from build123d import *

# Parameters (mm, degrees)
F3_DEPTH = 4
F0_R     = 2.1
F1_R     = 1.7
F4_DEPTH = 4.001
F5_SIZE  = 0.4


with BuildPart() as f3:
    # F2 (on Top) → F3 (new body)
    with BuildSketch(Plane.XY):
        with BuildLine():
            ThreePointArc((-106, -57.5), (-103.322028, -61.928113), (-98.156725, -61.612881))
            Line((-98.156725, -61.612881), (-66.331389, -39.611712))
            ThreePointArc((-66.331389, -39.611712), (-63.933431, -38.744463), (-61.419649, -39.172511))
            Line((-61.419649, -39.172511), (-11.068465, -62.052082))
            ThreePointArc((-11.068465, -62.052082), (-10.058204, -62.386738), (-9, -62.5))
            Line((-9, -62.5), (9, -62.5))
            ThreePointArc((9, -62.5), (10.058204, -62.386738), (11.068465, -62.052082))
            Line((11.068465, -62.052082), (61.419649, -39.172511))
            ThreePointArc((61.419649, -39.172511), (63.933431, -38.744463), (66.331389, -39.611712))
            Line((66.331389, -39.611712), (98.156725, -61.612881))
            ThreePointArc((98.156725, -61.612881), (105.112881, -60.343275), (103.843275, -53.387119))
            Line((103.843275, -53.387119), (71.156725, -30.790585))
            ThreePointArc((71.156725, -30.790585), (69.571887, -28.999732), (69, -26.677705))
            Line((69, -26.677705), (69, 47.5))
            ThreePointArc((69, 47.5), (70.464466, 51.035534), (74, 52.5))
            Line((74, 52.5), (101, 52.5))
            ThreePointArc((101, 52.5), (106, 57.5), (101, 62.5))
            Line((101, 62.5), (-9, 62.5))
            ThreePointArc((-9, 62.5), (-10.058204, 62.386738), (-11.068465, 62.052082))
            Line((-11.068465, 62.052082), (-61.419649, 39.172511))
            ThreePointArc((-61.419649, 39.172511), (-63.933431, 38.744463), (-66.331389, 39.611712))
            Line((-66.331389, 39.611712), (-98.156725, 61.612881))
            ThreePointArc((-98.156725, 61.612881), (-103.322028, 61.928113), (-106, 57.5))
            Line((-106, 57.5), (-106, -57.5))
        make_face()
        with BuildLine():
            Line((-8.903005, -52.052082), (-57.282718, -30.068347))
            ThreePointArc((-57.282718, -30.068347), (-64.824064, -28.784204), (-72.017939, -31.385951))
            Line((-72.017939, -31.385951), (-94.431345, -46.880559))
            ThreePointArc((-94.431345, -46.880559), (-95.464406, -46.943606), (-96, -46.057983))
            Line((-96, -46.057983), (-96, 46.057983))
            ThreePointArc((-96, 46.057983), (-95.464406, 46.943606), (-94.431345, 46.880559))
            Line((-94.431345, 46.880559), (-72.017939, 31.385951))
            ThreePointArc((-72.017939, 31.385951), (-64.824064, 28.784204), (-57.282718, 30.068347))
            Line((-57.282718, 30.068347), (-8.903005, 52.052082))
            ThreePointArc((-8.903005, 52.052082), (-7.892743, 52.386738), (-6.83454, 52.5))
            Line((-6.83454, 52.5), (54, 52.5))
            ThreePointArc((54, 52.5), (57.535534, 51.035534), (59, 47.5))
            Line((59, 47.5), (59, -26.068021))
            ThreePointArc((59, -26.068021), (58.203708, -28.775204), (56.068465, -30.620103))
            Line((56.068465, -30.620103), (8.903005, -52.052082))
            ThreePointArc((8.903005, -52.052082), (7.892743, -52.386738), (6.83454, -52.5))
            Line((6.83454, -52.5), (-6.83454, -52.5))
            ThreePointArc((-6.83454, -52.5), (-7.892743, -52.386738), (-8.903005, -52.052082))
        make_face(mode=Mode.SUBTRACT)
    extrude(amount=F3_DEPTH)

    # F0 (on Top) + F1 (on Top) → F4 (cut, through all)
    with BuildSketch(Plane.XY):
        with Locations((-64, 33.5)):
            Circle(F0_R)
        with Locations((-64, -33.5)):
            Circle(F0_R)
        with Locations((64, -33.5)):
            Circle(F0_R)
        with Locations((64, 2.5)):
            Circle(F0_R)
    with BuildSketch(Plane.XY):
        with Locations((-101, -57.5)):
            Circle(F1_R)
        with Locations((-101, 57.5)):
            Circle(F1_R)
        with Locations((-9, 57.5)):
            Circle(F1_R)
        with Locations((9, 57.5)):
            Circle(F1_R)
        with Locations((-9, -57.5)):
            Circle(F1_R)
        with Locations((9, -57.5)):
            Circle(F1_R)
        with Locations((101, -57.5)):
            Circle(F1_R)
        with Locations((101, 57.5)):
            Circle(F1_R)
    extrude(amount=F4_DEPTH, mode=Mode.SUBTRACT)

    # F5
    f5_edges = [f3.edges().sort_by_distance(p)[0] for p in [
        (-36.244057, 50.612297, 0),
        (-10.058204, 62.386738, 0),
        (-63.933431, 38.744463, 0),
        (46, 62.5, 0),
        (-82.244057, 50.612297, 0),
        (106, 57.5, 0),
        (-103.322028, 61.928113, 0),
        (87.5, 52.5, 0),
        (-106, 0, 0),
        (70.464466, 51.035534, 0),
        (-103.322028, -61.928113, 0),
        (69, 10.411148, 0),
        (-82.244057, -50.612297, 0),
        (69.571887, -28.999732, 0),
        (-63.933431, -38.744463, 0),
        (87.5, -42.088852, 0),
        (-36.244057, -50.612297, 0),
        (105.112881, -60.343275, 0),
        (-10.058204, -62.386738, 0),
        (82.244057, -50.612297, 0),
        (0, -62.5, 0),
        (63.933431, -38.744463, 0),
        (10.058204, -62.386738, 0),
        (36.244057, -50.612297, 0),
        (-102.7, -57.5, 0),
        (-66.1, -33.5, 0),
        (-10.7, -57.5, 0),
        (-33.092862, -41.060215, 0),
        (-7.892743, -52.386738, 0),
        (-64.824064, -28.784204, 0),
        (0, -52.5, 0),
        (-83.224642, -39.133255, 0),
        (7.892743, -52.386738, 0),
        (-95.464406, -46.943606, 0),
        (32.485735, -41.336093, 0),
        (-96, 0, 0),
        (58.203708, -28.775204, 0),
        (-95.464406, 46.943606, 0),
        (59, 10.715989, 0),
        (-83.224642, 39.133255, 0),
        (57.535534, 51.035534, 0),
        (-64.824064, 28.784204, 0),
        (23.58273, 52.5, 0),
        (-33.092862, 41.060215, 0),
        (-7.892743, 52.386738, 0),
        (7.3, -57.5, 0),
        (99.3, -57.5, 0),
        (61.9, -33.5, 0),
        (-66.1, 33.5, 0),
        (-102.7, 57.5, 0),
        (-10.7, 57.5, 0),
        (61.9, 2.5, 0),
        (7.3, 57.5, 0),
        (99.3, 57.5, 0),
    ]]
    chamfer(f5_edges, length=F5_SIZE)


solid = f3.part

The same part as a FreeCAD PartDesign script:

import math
import FreeCAD as App
import Part
import Sketcher

V = App.Vector


def edges_at(feature, points):
    """Names of the edges that pass closest to the given points."""
    edges = feature.Shape.Edges
    near = lambda p: min(range(len(edges)), key=lambda i: edges[i].distToShape(Part.Vertex(*p))[0])
    return sorted({f"Edge{near(p) + 1}" for p in points})

doc = App.newDocument("Part")
body = doc.addObject("PartDesign::Body", "Body")

# Sketch on XY plane
sketch1 = body.newObject("Sketcher::SketchObject", "Sketch")
sketch1.AttachmentSupport = (doc.getObject("XY_Plane"), [""])
sketch1.MapMode = "FlatFace"
sketch1.addGeometry([
    Part.ArcOfCircle(Part.Circle(V(-101, -57.5, 0), V(0, 0, 1), 5), math.radians(-179.999996), math.radians(-55.34352)),  # 0
    Part.LineSegment(V(-98.156725, -61.612881, 0), V(-66.331389, -39.611712, 0)),  # 1
    Part.ArcOfCircle(Part.Circle(V(-63.488115, -43.724592, 0), V(0, 0, 1), 4.999999), math.radians(65.562952), math.radians(124.656488)),  # 2
    Part.LineSegment(V(-61.419649, -39.172511, 0), V(-11.068465, -62.052082, 0)),  # 3
    Part.ArcOfCircle(Part.Circle(V(-9.000004, -57.500022, 0), V(0, 0, 1), 4.999978), math.radians(-114.437095), math.radians(-89.999952)),  # 4
    Part.LineSegment(V(-9, -62.5, 0), V(9, -62.5, 0)),  # 5
    Part.ArcOfCircle(Part.Circle(V(9.000004, -57.500022, 0), V(0, 0, 1), 4.999978), math.radians(-90.000048), math.radians(-65.562905)),  # 6
    Part.LineSegment(V(11.068465, -62.052082, 0), V(61.419649, -39.172511, 0)),  # 7
    Part.ArcOfCircle(Part.Circle(V(63.488115, -43.724592, 0), V(0, 0, 1), 4.999999), math.radians(55.343512), math.radians(114.437048)),  # 8
    Part.LineSegment(V(66.331389, -39.611712, 0), V(98.156725, -61.612881, 0)),  # 9
    Part.ArcOfCircle(Part.Circle(V(101, -57.5, 0), V(0, 0, 1), 5), math.radians(-124.656486), math.radians(55.343514)),  # 10
    Part.LineSegment(V(103.843275, -53.387119, 0), V(71.156725, -30.790585, 0)),  # 11
    Part.ArcOfCircle(Part.Circle(V(74.000002, -26.677703, 0), V(0, 0, 1), 5.000002), math.radians(-179.999979), math.radians(-124.656501)),  # 12
    Part.LineSegment(V(69, -26.677705, 0), V(69, 47.5, 0)),  # 13
    Part.ArcOfCircle(Part.Circle(V(74, 47.5, 0), V(0, 0, 1), 5), math.radians(89.999996), math.radians(180.000004)),  # 14
    Part.LineSegment(V(74, 52.5, 0), V(101, 52.5, 0)),  # 15
    Part.ArcOfCircle(Part.Circle(V(101, 57.5, 0), V(0, 0, 1), 5), math.radians(-90), math.radians(90)),  # 16
    Part.LineSegment(V(101, 62.5, 0), V(-9, 62.5, 0)),  # 17
    Part.ArcOfCircle(Part.Circle(V(-9.000004, 57.500022, 0), V(0, 0, 1), 4.999978), math.radians(89.999952), math.radians(114.437095)),  # 18
    Part.LineSegment(V(-11.068465, 62.052082, 0), V(-61.419649, 39.172511, 0)),  # 19
    Part.ArcOfCircle(Part.Circle(V(-63.488115, 43.724592, 0), V(0, 0, 1), 4.999999), math.radians(-124.656488), math.radians(-65.562952)),  # 20
    Part.LineSegment(V(-66.331389, 39.611712, 0), V(-98.156725, 61.612881, 0)),  # 21
    Part.ArcOfCircle(Part.Circle(V(-101, 57.5, 0), V(0, 0, 1), 5), math.radians(55.34352), math.radians(179.999996)),  # 22
    Part.LineSegment(V(-106, 57.5, 0), V(-106, -57.5, 0)),  # 23
    Part.ArcOfCircle(Part.Circle(V(-6.834542, -47.500013, 0), V(0, 0, 1), 4.999987), math.radians(-114.437073), math.radians(-89.999975)),  # 24
    Part.LineSegment(V(-8.903005, -52.052082, 0), V(-57.282718, -30.068347, 0)),  # 25
    Part.ArcOfCircle(Part.Circle(V(-63.488114, -43.724596, 0), V(0, 0, 1), 15.000003), math.radians(65.562965), math.radians(124.656481)),  # 26
    Part.LineSegment(V(-72.017939, -31.385951, 0), V(-94.431345, -46.880559, 0)),  # 27
    Part.ArcOfCircle(Part.Circle(V(-95.000001, -46.057984, 0), V(0, 0, 1), 0.999999), math.radians(179.999948), math.radians(304.656548)),  # 28
    Part.LineSegment(V(-96, -46.057983, 0), V(-96, 46.057983, 0)),  # 29
    Part.ArcOfCircle(Part.Circle(V(-95.000001, 46.057984, 0), V(0, 0, 1), 0.999999), math.radians(55.343452), math.radians(180.000052)),  # 30
    Part.LineSegment(V(-94.431345, 46.880559, 0), V(-72.017939, 31.385951, 0)),  # 31
    Part.ArcOfCircle(Part.Circle(V(-63.488114, 43.724596, 0), V(0, 0, 1), 15.000003), math.radians(-124.656481), math.radians(-65.562965)),  # 32
    Part.LineSegment(V(-57.282718, 30.068347, 0), V(-8.903005, 52.052082, 0)),  # 33
    Part.ArcOfCircle(Part.Circle(V(-6.834542, 47.500013, 0), V(0, 0, 1), 4.999987), math.radians(89.999975), math.radians(114.437073)),  # 34
    Part.LineSegment(V(-6.83454, 52.5, 0), V(54, 52.5, 0)),  # 35
    Part.ArcOfCircle(Part.Circle(V(54, 47.5, 0), V(0, 0, 1), 5), math.radians(-0.000004), math.radians(90.000004)),  # 36
    Part.LineSegment(V(59, 47.5, 0), V(59, -26.068021, 0)),  # 37
    Part.ArcOfCircle(Part.Circle(V(54.000001, -26.068021, 0), V(0, 0, 1), 4.999999), math.radians(-65.562972), math.radians(0.000005)),  # 38
    Part.LineSegment(V(56.068465, -30.620103, 0), V(8.903005, -52.052082, 0)),  # 39
    Part.ArcOfCircle(Part.Circle(V(6.834542, -47.500013, 0), V(0, 0, 1), 4.999987), math.radians(-90.000025), math.radians(-65.562927)),  # 40
    Part.LineSegment(V(6.83454, -52.5, 0), V(-6.83454, -52.5, 0)),  # 41
], False)
sketch1.addConstraint([
    Sketcher.Constraint("Coincident", 0, 2, 1, 1),
    Sketcher.Constraint("Coincident", 1, 2, 2, 2),
    Sketcher.Constraint("Coincident", 2, 1, 3, 1),
    Sketcher.Constraint("Coincident", 3, 2, 4, 1),
    Sketcher.Constraint("Coincident", 4, 2, 5, 1),
    Sketcher.Constraint("Coincident", 5, 2, 6, 1),
    Sketcher.Constraint("Coincident", 6, 2, 7, 1),
    Sketcher.Constraint("Coincident", 7, 2, 8, 2),
    Sketcher.Constraint("Coincident", 8, 1, 9, 1),
    Sketcher.Constraint("Coincident", 9, 2, 10, 1),
    Sketcher.Constraint("Coincident", 10, 2, 11, 1),
    Sketcher.Constraint("Coincident", 11, 2, 12, 2),
    Sketcher.Constraint("Coincident", 12, 1, 13, 1),
    Sketcher.Constraint("Coincident", 13, 2, 14, 2),
    Sketcher.Constraint("Coincident", 14, 1, 15, 1),
    Sketcher.Constraint("Coincident", 15, 2, 16, 1),
    Sketcher.Constraint("Coincident", 16, 2, 17, 1),
    Sketcher.Constraint("Coincident", 17, 2, 18, 1),
    Sketcher.Constraint("Coincident", 18, 2, 19, 1),
    Sketcher.Constraint("Coincident", 19, 2, 20, 2),
    Sketcher.Constraint("Coincident", 20, 1, 21, 1),
    Sketcher.Constraint("Coincident", 21, 2, 22, 1),
    Sketcher.Constraint("Coincident", 22, 2, 23, 1),
    Sketcher.Constraint("Coincident", 23, 2, 0, 1),
    Sketcher.Constraint("Coincident", 24, 1, 25, 1),
    Sketcher.Constraint("Coincident", 25, 2, 26, 1),
    Sketcher.Constraint("Coincident", 26, 2, 27, 1),
    Sketcher.Constraint("Coincident", 27, 2, 28, 2),
    Sketcher.Constraint("Coincident", 28, 1, 29, 1),
    Sketcher.Constraint("Coincident", 29, 2, 30, 2),
    Sketcher.Constraint("Coincident", 30, 1, 31, 1),
    Sketcher.Constraint("Coincident", 31, 2, 32, 1),
    Sketcher.Constraint("Coincident", 32, 2, 33, 1),
    Sketcher.Constraint("Coincident", 33, 2, 34, 2),
    Sketcher.Constraint("Coincident", 34, 1, 35, 1),
    Sketcher.Constraint("Coincident", 35, 2, 36, 2),
    Sketcher.Constraint("Coincident", 36, 1, 37, 1),
    Sketcher.Constraint("Coincident", 37, 2, 38, 2),
    Sketcher.Constraint("Coincident", 38, 1, 39, 1),
    Sketcher.Constraint("Coincident", 39, 2, 40, 2),
    Sketcher.Constraint("Coincident", 40, 1, 41, 1),
    Sketcher.Constraint("Coincident", 41, 2, 24, 2),
    Sketcher.Constraint("Horizontal", 5),
    Sketcher.Constraint("Vertical", 13),
    Sketcher.Constraint("Horizontal", 15),
    Sketcher.Constraint("Horizontal", 17),
    Sketcher.Constraint("Vertical", 23),
    Sketcher.Constraint("Vertical", 29),
    Sketcher.Constraint("Horizontal", 35),
    Sketcher.Constraint("Vertical", 37),
    Sketcher.Constraint("Horizontal", 41),
    Sketcher.Constraint("Coincident", 26, 3, 2, 3),
    Sketcher.Constraint("Coincident", 32, 3, 20, 3),
    Sketcher.Constraint("Radius", 0, 5.0),
    Sketcher.Constraint("Radius", 2, 4.999999),
    Sketcher.Constraint("Radius", 8, 4.999999),
    Sketcher.Constraint("Radius", 10, 5.0),
    Sketcher.Constraint("Radius", 14, 5.0),
    Sketcher.Constraint("Radius", 16, 5.0),
    Sketcher.Constraint("Radius", 20, 4.999999),
    Sketcher.Constraint("Radius", 22, 5.0),
    Sketcher.Constraint("Radius", 28, 0.999999),
    Sketcher.Constraint("Radius", 30, 0.999999),
    Sketcher.Constraint("Radius", 36, 5.0),
    Sketcher.Constraint("Radius", 38, 4.999999),
    Sketcher.Constraint("DistanceX", 5, 1, 5, 2, 18.0),
    Sketcher.Constraint("DistanceX", 15, 1, 15, 2, 27.0),
    Sketcher.Constraint("DistanceX", 17, 2, 17, 1, 110.0),
    Sketcher.Constraint("DistanceY", 23, 2, 23, 1, 115.0),
    Sketcher.Constraint("DistanceX", 0, 3, -1, 1, 101.0),
    Sketcher.Constraint("DistanceX", -1, 1, 10, 3, 101.0),
    Sketcher.Constraint("DistanceX", -1, 1, 14, 3, 74.0),
    Sketcher.Constraint("DistanceX", -1, 1, 16, 3, 101.0),
    Sketcher.Constraint("DistanceX", 28, 3, -1, 1, 95.000001),
    Sketcher.Constraint("DistanceX", -1, 1, 36, 3, 54.0),
    Sketcher.Constraint("DistanceX", 4, 2, -1, 1, 9.0),
    Sketcher.Constraint("DistanceX", -1, 1, 14, 1, 74.0),
    Sketcher.Constraint("DistanceX", -1, 1, 16, 2, 101.0),
    Sketcher.Constraint("DistanceX", -1, 1, 35, 2, 54.0),
    Sketcher.Constraint("DistanceY", 0, 3, -1, 1, 57.5),
    Sketcher.Constraint("DistanceY", 10, 3, -1, 1, 57.5),
    Sketcher.Constraint("DistanceY", -1, 1, 14, 3, 47.5),
    Sketcher.Constraint("DistanceY", -1, 1, 22, 3, 57.5),
    Sketcher.Constraint("DistanceY", -1, 1, 36, 3, 47.5),
    Sketcher.Constraint("DistanceY", 4, 2, -1, 1, 62.5),
    Sketcher.Constraint("DistanceY", -1, 1, 13, 2, 47.5),
    Sketcher.Constraint("DistanceY", -1, 1, 22, 2, 57.5),
    Sketcher.Constraint("DistanceY", -1, 1, 36, 1, 47.5),
    Sketcher.Constraint("DistanceY", 40, 1, -1, 1, 52.5),
    Sketcher.Constraint("Radius", 4, 4.999978),
    Sketcher.Constraint("Radius", 6, 4.999978),
    Sketcher.Constraint("Radius", 18, 4.999978),
    Sketcher.Constraint("Radius", 12, 5.000002),
    Sketcher.Constraint("Radius", 24, 4.999987),
    Sketcher.Constraint("Radius", 26, 15.000003),
    Sketcher.Constraint("Radius", 32, 15.000003),
    Sketcher.Constraint("Radius", 34, 4.999987),
    Sketcher.Constraint("Radius", 40, 4.999987),
    Sketcher.Constraint("DistanceX", 35, 1, 35, 2, 60.83454),
    Sketcher.Constraint("DistanceX", 41, 2, 41, 1, 13.66908),
    Sketcher.Constraint("DistanceY", 37, 2, 37, 1, 73.568021),
    Sketcher.Constraint("Distance", 27, 27.247819),
    Sketcher.Constraint("Distance", 31, 27.247819),
    Sketcher.Constraint("Distance", 39, 51.80647),
    Sketcher.Constraint("DistanceY", 13, 1, 13, 2, 74.177705),
    Sketcher.Constraint("DistanceY", 29, 1, 29, 2, 92.115966),
    Sketcher.Constraint("DistanceY", 2, 3, -1, 1, 43.724592),
    Sketcher.Constraint("DistanceY", 8, 3, -1, 1, 43.724592),
    Sketcher.Constraint("DistanceY", -1, 1, 20, 3, 43.724592),
    Sketcher.Constraint("DistanceY", 38, 3, -1, 1, 26.068021),
    Sketcher.Constraint("DistanceY", 0, 2, -1, 1, 61.612881),
    Sketcher.Constraint("DistanceX", 1, 2, -1, 1, 66.331389),
    Sketcher.Constraint("DistanceY", 1, 2, -1, 1, 39.611712),
    Sketcher.Constraint("DistanceX", 2, 1, -1, 1, 61.419649),
    Sketcher.Constraint("DistanceX", -1, 1, 7, 2, 61.419649),
    Sketcher.Constraint("DistanceY", 7, 2, -1, 1, 39.172511),
    Sketcher.Constraint("DistanceX", -1, 1, 8, 1, 66.331389),
    Sketcher.Constraint("DistanceY", 9, 2, -1, 1, 61.612881),
    Sketcher.Constraint("DistanceY", 10, 2, -1, 1, 53.387119),
    Sketcher.Constraint("DistanceX", 19, 2, -1, 1, 61.419649),
    Sketcher.Constraint("DistanceY", -1, 1, 19, 2, 39.172511),
    Sketcher.Constraint("DistanceX", 20, 1, -1, 1, 66.331389),
    Sketcher.Constraint("DistanceY", -1, 1, 21, 2, 61.612881),
    Sketcher.Constraint("DistanceX", 25, 2, -1, 1, 57.282718),
    Sketcher.Constraint("DistanceX", 26, 2, -1, 1, 72.017939),
    Sketcher.Constraint("DistanceY", 27, 2, -1, 1, 46.880559),
    Sketcher.Constraint("DistanceY", -1, 1, 30, 1, 46.880559),
    Sketcher.Constraint("DistanceX", 31, 2, -1, 1, 72.017939),
    Sketcher.Constraint("DistanceX", 32, 2, -1, 1, 57.282718),
    Sketcher.Constraint("DistanceX", -1, 1, 40, 1, 6.83454),
    Sketcher.Constraint("Distance", 3, 55.305664),
    Sketcher.Constraint("Distance", 7, 55.305664),
    Sketcher.Constraint("Distance", 11, 39.736808),
    Sketcher.Constraint("Distance", 19, 55.305664),
    Sketcher.Constraint("Distance", 25, 53.140204),
    Sketcher.Constraint("Distance", 33, 53.140204),
    Sketcher.Constraint("DistanceX", 4, 3, -1, 1, 9.000004),
    Sketcher.Constraint("DistanceX", -1, 1, 6, 3, 9.000004),
    Sketcher.Constraint("DistanceY", 12, 3, -1, 1, 26.677703),
    Sketcher.Constraint("DistanceX", 18, 3, -1, 1, 9.000004),
    Sketcher.Constraint("DistanceX", 24, 3, -1, 1, 6.834542),
    Sketcher.Constraint("DistanceX", 34, 3, -1, 1, 6.834542),
    Sketcher.Constraint("DistanceX", -1, 1, 40, 3, 6.834542),
    Sketcher.Constraint("DistanceY", 28, 1, -1, 1, 46.057983),
    Sketcher.Constraint("DistanceX", -1, 1, 38, 1, 56.068465),
])
pad1 = body.newObject("PartDesign::Pad", "Pad")
pad1.Profile = sketch1
pad1.Length = 4

# Sketch on XY plane
sketch2 = body.newObject("Sketcher::SketchObject", "Sketch001")
sketch2.AttachmentSupport = (doc.getObject("XY_Plane"), [""])
sketch2.MapMode = "FlatFace"
sketch2.addGeometry([
    Part.Circle(V(-64, 33.5, 0), V(0, 0, 1), 2.1),  # 0
    Part.Circle(V(-64, -33.5, 0), V(0, 0, 1), 2.1),  # 1
    Part.Circle(V(64, -33.5, 0), V(0, 0, 1), 2.1),  # 2
    Part.Circle(V(64, 2.5, 0), V(0, 0, 1), 2.1),  # 3
    Part.Circle(V(-101, -57.5, 0), V(0, 0, 1), 1.7),  # 4
    Part.Circle(V(-101, 57.5, 0), V(0, 0, 1), 1.7),  # 5
    Part.Circle(V(-9, 57.5, 0), V(0, 0, 1), 1.7),  # 6
    Part.Circle(V(9, 57.5, 0), V(0, 0, 1), 1.7),  # 7
    Part.Circle(V(-9, -57.5, 0), V(0, 0, 1), 1.7),  # 8
    Part.Circle(V(9, -57.5, 0), V(0, 0, 1), 1.7),  # 9
    Part.Circle(V(101, -57.5, 0), V(0, 0, 1), 1.7),  # 10
    Part.Circle(V(101, 57.5, 0), V(0, 0, 1), 1.7),  # 11
], False)
sketch2.addConstraint([
    Sketcher.Constraint("Equal", 0, 1),
    Sketcher.Constraint("Equal", 1, 2),
    Sketcher.Constraint("Equal", 2, 3),
    Sketcher.Constraint("Equal", 4, 5),
    Sketcher.Constraint("Equal", 5, 6),
    Sketcher.Constraint("Equal", 6, 7),
    Sketcher.Constraint("Equal", 7, 8),
    Sketcher.Constraint("Equal", 8, 9),
    Sketcher.Constraint("Equal", 9, 10),
    Sketcher.Constraint("Equal", 10, 11),
    Sketcher.Constraint("Symmetric", 0, 3, 2, 3, -1, 1),
    Sketcher.Constraint("Symmetric", 7, 3, 8, 3, -1, 1),
    Sketcher.Constraint("Symmetric", 6, 3, 9, 3, -1, 1),
    Sketcher.Constraint("Symmetric", 5, 3, 10, 3, -1, 1),
    Sketcher.Constraint("Symmetric", 4, 3, 11, 3, -1, 1),
    Sketcher.Constraint("Symmetric", 1, 3, 2, 3, -2),
    Sketcher.Constraint("Symmetric", 6, 3, 7, 3, -2),
    Sketcher.Constraint("Symmetric", 4, 3, 10, 3, -2),
    Sketcher.Constraint("Horizontal", 5, 3, 6, 3),
    Sketcher.Constraint("Vertical", 2, 3, 3, 3),
    Sketcher.Constraint("Diameter", 0, 4.2),
    Sketcher.Constraint("Diameter", 4, 3.4),
    Sketcher.Constraint("DistanceX", 0, 3, -1, 1, 64.0),
    Sketcher.Constraint("DistanceX", 4, 3, -1, 1, 101.0),
    Sketcher.Constraint("DistanceX", 6, 3, -1, 1, 9.0),
    Sketcher.Constraint("DistanceY", 1, 3, 0, 3, 67.0),
    Sketcher.Constraint("DistanceY", 2, 3, 3, 3, 36.0),
    Sketcher.Constraint("DistanceY", 4, 3, 1, 3, 24.0),
])
pocket1 = body.newObject("PartDesign::Pocket", "Pocket")
pocket1.Profile = sketch2
pocket1.Type = "ThroughAll"
pocket1.Reversed = True
doc.recompute()

chamfer = body.newObject("PartDesign::Chamfer", "Chamfer")
chamfer.Base = (pocket1, edges_at(pocket1, [
    (-36.244, 50.612, 0),
    (-10.058, 62.387, 0),
    (-63.933, 38.744, 0),
    (46, 62.5, 0),
    (-82.244, 50.612, 0),
    (106, 57.5, 0),
    (-103.322, 61.928, 0),
    (87.5, 52.5, 0),
    (-106, 0, 0),
    (70.464, 51.036, 0),
    (-103.322, -61.928, 0),
    (69, 10.411, 0),
    (-82.244, -50.612, 0),
    (69.572, -29, 0),
    (-63.933, -38.744, 0),
    (87.5, -42.089, 0),
    (-36.244, -50.612, 0),
    (105.113, -60.343, 0),
    (-10.058, -62.387, 0),
    (82.244, -50.612, 0),
    (0, -62.5, 0),
    (63.933, -38.744, 0),
    (10.058, -62.387, 0),
    (36.244, -50.612, 0),
    (-102.7, -57.5, 0),
    (-66.1, -33.5, 0),
    (-10.7, -57.5, 0),
    (-33.093, -41.06, 0),
    (-7.893, -52.387, 0),
    (-64.824, -28.784, 0),
    (0, -52.5, 0),
    (-83.225, -39.133, 0),
    (7.893, -52.387, 0),
    (-95.464, -46.944, 0),
    (32.486, -41.336, 0),
    (-96, 0, 0),
    (58.204, -28.775, 0),
    (-95.464, 46.944, 0),
    (59, 10.716, 0),
    (-83.225, 39.133, 0),
    (57.536, 51.036, 0),
    (-64.824, 28.784, 0),
    (23.583, 52.5, 0),
    (-33.093, 41.06, 0),
    (-7.893, 52.387, 0),
    (7.3, -57.5, 0),
    (99.3, -57.5, 0),
    (61.9, -33.5, 0),
    (-66.1, 33.5, 0),
    (-102.7, 57.5, 0),
    (-10.7, 57.5, 0),
    (61.9, 2.5, 0),
    (7.3, 57.5, 0),
    (99.3, 57.5, 0),
]))
chamfer.Size = 0.4

doc.recompute()
